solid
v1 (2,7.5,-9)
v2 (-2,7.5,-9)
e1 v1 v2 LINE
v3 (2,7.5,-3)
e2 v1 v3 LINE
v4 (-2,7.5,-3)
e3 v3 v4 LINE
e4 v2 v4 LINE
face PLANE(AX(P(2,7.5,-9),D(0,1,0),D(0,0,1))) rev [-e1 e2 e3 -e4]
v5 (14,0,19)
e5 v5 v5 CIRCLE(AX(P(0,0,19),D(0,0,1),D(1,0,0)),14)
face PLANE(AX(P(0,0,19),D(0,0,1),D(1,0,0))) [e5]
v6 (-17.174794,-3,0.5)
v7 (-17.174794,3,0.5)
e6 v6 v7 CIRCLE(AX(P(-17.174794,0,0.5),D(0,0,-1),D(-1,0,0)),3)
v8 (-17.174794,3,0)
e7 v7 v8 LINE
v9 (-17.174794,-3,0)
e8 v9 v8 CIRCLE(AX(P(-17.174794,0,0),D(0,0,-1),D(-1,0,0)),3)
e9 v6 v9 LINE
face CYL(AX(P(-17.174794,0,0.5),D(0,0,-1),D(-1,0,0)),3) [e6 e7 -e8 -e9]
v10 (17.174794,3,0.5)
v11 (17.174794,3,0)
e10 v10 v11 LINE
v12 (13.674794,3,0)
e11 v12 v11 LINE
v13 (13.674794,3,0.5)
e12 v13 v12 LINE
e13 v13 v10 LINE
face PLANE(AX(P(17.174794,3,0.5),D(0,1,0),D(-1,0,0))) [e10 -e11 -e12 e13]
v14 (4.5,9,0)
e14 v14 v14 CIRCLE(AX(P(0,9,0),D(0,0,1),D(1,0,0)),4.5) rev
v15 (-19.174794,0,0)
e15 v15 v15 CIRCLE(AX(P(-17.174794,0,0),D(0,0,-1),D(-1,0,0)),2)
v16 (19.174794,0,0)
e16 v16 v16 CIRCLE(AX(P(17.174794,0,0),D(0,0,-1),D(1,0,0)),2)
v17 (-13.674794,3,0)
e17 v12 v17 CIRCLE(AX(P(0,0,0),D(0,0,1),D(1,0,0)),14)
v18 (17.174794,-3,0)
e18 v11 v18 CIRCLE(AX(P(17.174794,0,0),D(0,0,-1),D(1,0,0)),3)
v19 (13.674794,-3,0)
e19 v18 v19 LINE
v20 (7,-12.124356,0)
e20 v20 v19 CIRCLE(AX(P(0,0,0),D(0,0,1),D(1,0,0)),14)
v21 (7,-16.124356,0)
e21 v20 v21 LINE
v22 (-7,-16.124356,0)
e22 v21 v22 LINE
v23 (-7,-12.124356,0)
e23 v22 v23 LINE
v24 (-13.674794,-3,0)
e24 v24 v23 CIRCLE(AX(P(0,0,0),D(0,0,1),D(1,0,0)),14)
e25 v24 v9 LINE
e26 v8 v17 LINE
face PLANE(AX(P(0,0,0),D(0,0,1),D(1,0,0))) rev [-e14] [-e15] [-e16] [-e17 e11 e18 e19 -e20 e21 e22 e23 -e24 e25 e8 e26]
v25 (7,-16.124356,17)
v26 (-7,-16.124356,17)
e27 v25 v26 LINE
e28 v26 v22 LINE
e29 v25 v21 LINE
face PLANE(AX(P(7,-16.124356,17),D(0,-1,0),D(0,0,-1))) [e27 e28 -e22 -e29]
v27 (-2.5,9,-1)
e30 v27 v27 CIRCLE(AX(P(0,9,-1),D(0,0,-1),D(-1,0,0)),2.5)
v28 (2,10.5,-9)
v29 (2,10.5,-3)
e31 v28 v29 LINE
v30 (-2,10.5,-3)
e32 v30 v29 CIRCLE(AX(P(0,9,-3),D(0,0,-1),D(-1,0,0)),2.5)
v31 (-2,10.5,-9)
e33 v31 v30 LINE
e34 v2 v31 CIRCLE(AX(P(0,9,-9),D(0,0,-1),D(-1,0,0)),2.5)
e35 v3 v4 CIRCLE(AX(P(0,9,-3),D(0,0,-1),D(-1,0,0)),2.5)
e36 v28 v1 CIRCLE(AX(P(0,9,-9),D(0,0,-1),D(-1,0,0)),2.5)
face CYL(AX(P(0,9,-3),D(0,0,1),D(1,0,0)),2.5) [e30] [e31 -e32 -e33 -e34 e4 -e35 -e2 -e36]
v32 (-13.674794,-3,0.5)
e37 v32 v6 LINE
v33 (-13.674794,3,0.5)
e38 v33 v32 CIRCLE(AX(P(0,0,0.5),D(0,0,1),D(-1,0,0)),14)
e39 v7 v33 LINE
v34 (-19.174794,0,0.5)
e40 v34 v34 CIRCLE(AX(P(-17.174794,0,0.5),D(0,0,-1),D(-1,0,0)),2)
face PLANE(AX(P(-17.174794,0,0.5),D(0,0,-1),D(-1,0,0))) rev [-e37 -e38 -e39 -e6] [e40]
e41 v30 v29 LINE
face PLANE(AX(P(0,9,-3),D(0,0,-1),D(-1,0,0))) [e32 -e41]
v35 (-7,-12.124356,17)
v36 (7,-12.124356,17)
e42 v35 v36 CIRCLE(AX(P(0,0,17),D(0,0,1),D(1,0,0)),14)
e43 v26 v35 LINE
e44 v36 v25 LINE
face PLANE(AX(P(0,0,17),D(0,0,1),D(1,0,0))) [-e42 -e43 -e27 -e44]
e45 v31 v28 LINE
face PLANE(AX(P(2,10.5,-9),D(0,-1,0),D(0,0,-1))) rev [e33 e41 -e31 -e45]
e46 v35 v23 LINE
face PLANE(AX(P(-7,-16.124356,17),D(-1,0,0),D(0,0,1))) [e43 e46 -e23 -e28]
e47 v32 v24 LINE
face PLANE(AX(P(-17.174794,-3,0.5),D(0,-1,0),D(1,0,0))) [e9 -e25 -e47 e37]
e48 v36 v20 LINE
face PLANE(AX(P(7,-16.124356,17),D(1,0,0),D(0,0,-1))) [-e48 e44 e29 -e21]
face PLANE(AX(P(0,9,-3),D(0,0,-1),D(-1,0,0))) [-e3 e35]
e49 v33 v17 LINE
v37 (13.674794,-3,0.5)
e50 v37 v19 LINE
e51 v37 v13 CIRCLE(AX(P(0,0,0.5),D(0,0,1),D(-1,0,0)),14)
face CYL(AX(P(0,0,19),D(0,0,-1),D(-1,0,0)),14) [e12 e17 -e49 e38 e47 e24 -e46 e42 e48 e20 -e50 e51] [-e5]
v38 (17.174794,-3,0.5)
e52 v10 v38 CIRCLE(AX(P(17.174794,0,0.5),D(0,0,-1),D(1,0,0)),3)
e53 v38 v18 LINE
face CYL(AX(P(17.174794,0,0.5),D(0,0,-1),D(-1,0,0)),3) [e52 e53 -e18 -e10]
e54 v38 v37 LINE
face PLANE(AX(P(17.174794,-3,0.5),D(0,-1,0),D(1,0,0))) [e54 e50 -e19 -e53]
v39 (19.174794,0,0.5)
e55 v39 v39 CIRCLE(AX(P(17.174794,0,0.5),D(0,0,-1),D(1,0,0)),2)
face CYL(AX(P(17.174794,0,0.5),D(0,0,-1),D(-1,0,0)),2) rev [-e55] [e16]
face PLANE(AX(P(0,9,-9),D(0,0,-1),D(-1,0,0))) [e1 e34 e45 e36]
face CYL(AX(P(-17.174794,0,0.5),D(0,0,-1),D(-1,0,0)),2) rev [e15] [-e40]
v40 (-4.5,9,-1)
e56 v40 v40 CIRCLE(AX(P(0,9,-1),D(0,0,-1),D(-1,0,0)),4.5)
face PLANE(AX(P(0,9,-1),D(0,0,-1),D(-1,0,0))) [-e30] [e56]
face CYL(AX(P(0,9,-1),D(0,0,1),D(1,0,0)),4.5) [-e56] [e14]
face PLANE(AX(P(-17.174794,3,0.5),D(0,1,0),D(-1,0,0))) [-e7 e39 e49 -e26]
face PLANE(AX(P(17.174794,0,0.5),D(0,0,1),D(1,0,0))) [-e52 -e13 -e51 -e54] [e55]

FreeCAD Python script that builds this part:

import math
import FreeCAD as App
import Part
import Sketcher

V = App.Vector


def add_polygon(sketch, points):
    """Adds a closed chain of lines whose ends are joined by coincident constraints."""
    first, n = sketch.GeometryCount, len(points)
    for a, b in zip(points, points[1:] + points[:1]):
        sketch.addGeometry(Part.LineSegment(App.Vector(*a, 0), App.Vector(*b, 0)), False)
    for i in range(n):
        sketch.addConstraint(Sketcher.Constraint("Coincident", first + i, 2, first + (i + 1) % n, 1))

doc = App.newDocument("Part")
body = doc.addObject("PartDesign::Body", "Body")

sketch1 = body.newObject("Sketcher::SketchObject", "Sketch")
sketch1.AttachmentSupport = (doc.getObject("XY_Plane"), [""])
sketch1.MapMode = "FlatFace"
sketch1.addGeometry(Part.Circle(V(0, 0, 0), V(0, 0, 1), 14), False)
sketch1.addConstraint([
    Sketcher.Constraint("Coincident", 0, 3, -1, 1),
    Sketcher.Constraint("Diameter", 0, 28.0),
])
pad1 = body.newObject("PartDesign::Pad", "Pad")
pad1.Profile = sketch1
pad1.Length = 19

sketch2 = body.newObject("Sketcher::SketchObject", "Sketch001")
sketch2.AttachmentSupport = (doc.getObject("XY_Plane"), [""])
sketch2.MapMode = "FlatFace"
sketch2.addGeometry([
    Part.LineSegment(V(-17.2, 3, 0), V(-13.7, 3, 0)),
    Part.ArcOfCircle(Part.Circle(V(0, 0, 0), V(0, 0, 1), 14), math.radians(168), math.radians(192)),
    Part.LineSegment(V(-13.7, -3, 0), V(-17.2, -3, 0)),
    Part.ArcOfCircle(Part.Circle(V(-17.2, 0, 0), V(0, 0, 1), 3), math.radians(90), math.radians(270)),
    Part.Circle(V(-17.2, 0, 0), V(0, 0, 1), 2),
    Part.LineSegment(V(17.2, -3, 0), V(13.7, -3, 0)),
    Part.ArcOfCircle(Part.Circle(V(0, 0, 0), V(0, 0, 1), 14), math.radians(-12), math.radians(12)),
    Part.LineSegment(V(13.7, 3, 0), V(17.2, 3, 0)),
    Part.ArcOfCircle(Part.Circle(V(17.2, 0, 0), V(0, 0, 1), 3), math.radians(-90), math.radians(90)),
    Part.Circle(V(17.2, 0, 0), V(0, 0, 1), 2),
], False)
sketch2.addConstraint([
    Sketcher.Constraint("Coincident", 0, 2, 1, 1),
    Sketcher.Constraint("Coincident", 1, 2, 2, 1),
    Sketcher.Constraint("Tangent", 2, 2, 3, 2),
    Sketcher.Constraint("Tangent", 3, 1, 0, 1),
    Sketcher.Constraint("Coincident", 5, 2, 6, 1),
    Sketcher.Constraint("Coincident", 6, 2, 7, 1),
    Sketcher.Constraint("Tangent", 7, 2, 8, 2),
    Sketcher.Constraint("Tangent", 8, 1, 5, 1),
    Sketcher.Constraint("Horizontal", 0),
    Sketcher.Constraint("Horizontal", 2),
    Sketcher.Constraint("Horizontal", 5),
    Sketcher.Constraint("Horizontal", 7),
    Sketcher.Constraint("Coincident", 1, 3, -1, 1),
    Sketcher.Constraint("Coincident", 6, 3, -1, 1),
    Sketcher.Constraint("Coincident", 4, 3, 3, 3),
    Sketcher.Constraint("Coincident", 9, 3, 8, 3),
    Sketcher.Constraint("Equal", 1, 6),
    Sketcher.Constraint("Equal", 3, 8),
    Sketcher.Constraint("Equal", 4, 9),
    Sketcher.Constraint("Symmetric", 3, 3, 8, 3, -1, 1),
    Sketcher.Constraint("PointOnObject", 3, 3, -1),
    Sketcher.Constraint("Diameter", 4, 4.0),
    Sketcher.Constraint("Radius", 1, 14.0),
    Sketcher.Constraint("Radius", 3, 3.0),
    Sketcher.Constraint("DistanceX", 0, 1, 0, 2, 3.5),
])
pad2 = body.newObject("PartDesign::Pad", "Pad001")
pad2.Profile = sketch2
pad2.Length = 0.5

sketch3 = body.newObject("Sketcher::SketchObject", "Sketch002")
sketch3.AttachmentSupport = (doc.getObject("XY_Plane"), [""])
sketch3.MapMode = "FlatFace"
sketch3.addGeometry(Part.Circle(V(0, 9, 0), V(0, 0, 1), 4.5), False)
sketch3.addConstraint([
    Sketcher.Constraint("PointOnObject", 0, 3, -2),
    Sketcher.Constraint("Diameter", 0, 9.0),
    Sketcher.Constraint("DistanceY", -1, 1, 0, 3, 9.0),
])
pad3 = body.newObject("PartDesign::Pad", "Pad002")
pad3.Profile = sketch3
pad3.Length = 1
pad3.Reversed = True

sketch4 = body.newObject("Sketcher::SketchObject", "Sketch003")
sketch4.AttachmentSupport = (doc.getObject("XY_Plane"), [""])
sketch4.MapMode = "FlatFace"
sketch4.AttachmentOffset = App.Placement(V(0, 0, -1), App.Rotation())
sketch4.addGeometry(Part.Circle(V(0, 9, 0), V(0, 0, 1), 2.5), False)
sketch4.addConstraint([
    Sketcher.Constraint("PointOnObject", 0, 3, -2),
    Sketcher.Constraint("Diameter", 0, 5.0),
    Sketcher.Constraint("DistanceY", -1, 1, 0, 3, 9.0),
])
pad4 = body.newObject("PartDesign::Pad", "Pad003")
pad4.Profile = sketch4
pad4.Length = 2
pad4.Reversed = True

sketch5 = body.newObject("Sketcher::SketchObject", "Sketch004")
sketch5.AttachmentSupport = (doc.getObject("XY_Plane"), [""])
sketch5.MapMode = "FlatFace"
sketch5.AttachmentOffset = App.Placement(V(0, 0, -3), App.Rotation())
sketch5.addGeometry([
    Part.LineSegment(V(-2, 10.5, 0), V(2, 10.5, 0)),
    Part.ArcOfCircle(Part.Circle(V(0, 9, 0), V(0, 0, 1), 2.5), math.radians(-37), math.radians(37)),
    Part.LineSegment(V(2, 7.5, 0), V(-2, 7.5, 0)),
    Part.ArcOfCircle(Part.Circle(V(0, 9, 0), V(0, 0, 1), 2.5), math.radians(143), math.radians(217)),
], False)
sketch5.addConstraint([
    Sketcher.Constraint("Coincident", 0, 2, 1, 2),
    Sketcher.Constraint("Coincident", 1, 1, 2, 1),
    Sketcher.Constraint("Coincident", 2, 2, 3, 2),
    Sketcher.Constraint("Coincident", 3, 1, 0, 1),
    Sketcher.Constraint("Horizontal", 0),
    Sketcher.Constraint("Horizontal", 2),
    Sketcher.Constraint("Coincident", 3, 3, 1, 3),
    Sketcher.Constraint("Equal", 1, 3),
    Sketcher.Constraint("PointOnObject", 1, 3, -2),
    Sketcher.Constraint("Vertical", 0, 2, 1, 1),
    Sketcher.Constraint("Radius", 1, 2.5),
    Sketcher.Constraint("DistanceX", 0, 1, 0, 2, 4.0),
    Sketcher.Constraint("DistanceY", -1, 1, 1, 3, 9.0),
])
pad5 = body.newObject("PartDesign::Pad", "Pad004")
pad5.Profile = sketch5
pad5.Length = 6
pad5.Reversed = True

sketch6 = body.newObject("Sketcher::SketchObject", "Sketch005")
sketch6.AttachmentSupport = (doc.getObject("XY_Plane"), [""])
sketch6.MapMode = "FlatFace"
add_polygon(sketch6, [(7, -12.1), (7, -16.1), (-7, -16.1), (-7, -12.1)])
sketch6.addConstraint([
    Sketcher.Constraint("Vertical", 0),
    Sketcher.Constraint("Horizontal", 1),
    Sketcher.Constraint("Vertical", 2),
    Sketcher.Constraint("Horizontal", 3),
    Sketcher.Constraint("DistanceX", 1, 2, 1, 1, 14.0),
    Sketcher.Constraint("DistanceY", 0, 2, 0, 1, 4.0),
    Sketcher.Constraint("DistanceX", -1, 1, 0, 2, 7.0),
    Sketcher.Constraint("DistanceY", 0, 2, -1, 1, 16.124356),
])
pad6 = body.newObject("PartDesign::Pad", "Pad005")
pad6.Profile = sketch6
pad6.Length = 17

doc.recompute()
